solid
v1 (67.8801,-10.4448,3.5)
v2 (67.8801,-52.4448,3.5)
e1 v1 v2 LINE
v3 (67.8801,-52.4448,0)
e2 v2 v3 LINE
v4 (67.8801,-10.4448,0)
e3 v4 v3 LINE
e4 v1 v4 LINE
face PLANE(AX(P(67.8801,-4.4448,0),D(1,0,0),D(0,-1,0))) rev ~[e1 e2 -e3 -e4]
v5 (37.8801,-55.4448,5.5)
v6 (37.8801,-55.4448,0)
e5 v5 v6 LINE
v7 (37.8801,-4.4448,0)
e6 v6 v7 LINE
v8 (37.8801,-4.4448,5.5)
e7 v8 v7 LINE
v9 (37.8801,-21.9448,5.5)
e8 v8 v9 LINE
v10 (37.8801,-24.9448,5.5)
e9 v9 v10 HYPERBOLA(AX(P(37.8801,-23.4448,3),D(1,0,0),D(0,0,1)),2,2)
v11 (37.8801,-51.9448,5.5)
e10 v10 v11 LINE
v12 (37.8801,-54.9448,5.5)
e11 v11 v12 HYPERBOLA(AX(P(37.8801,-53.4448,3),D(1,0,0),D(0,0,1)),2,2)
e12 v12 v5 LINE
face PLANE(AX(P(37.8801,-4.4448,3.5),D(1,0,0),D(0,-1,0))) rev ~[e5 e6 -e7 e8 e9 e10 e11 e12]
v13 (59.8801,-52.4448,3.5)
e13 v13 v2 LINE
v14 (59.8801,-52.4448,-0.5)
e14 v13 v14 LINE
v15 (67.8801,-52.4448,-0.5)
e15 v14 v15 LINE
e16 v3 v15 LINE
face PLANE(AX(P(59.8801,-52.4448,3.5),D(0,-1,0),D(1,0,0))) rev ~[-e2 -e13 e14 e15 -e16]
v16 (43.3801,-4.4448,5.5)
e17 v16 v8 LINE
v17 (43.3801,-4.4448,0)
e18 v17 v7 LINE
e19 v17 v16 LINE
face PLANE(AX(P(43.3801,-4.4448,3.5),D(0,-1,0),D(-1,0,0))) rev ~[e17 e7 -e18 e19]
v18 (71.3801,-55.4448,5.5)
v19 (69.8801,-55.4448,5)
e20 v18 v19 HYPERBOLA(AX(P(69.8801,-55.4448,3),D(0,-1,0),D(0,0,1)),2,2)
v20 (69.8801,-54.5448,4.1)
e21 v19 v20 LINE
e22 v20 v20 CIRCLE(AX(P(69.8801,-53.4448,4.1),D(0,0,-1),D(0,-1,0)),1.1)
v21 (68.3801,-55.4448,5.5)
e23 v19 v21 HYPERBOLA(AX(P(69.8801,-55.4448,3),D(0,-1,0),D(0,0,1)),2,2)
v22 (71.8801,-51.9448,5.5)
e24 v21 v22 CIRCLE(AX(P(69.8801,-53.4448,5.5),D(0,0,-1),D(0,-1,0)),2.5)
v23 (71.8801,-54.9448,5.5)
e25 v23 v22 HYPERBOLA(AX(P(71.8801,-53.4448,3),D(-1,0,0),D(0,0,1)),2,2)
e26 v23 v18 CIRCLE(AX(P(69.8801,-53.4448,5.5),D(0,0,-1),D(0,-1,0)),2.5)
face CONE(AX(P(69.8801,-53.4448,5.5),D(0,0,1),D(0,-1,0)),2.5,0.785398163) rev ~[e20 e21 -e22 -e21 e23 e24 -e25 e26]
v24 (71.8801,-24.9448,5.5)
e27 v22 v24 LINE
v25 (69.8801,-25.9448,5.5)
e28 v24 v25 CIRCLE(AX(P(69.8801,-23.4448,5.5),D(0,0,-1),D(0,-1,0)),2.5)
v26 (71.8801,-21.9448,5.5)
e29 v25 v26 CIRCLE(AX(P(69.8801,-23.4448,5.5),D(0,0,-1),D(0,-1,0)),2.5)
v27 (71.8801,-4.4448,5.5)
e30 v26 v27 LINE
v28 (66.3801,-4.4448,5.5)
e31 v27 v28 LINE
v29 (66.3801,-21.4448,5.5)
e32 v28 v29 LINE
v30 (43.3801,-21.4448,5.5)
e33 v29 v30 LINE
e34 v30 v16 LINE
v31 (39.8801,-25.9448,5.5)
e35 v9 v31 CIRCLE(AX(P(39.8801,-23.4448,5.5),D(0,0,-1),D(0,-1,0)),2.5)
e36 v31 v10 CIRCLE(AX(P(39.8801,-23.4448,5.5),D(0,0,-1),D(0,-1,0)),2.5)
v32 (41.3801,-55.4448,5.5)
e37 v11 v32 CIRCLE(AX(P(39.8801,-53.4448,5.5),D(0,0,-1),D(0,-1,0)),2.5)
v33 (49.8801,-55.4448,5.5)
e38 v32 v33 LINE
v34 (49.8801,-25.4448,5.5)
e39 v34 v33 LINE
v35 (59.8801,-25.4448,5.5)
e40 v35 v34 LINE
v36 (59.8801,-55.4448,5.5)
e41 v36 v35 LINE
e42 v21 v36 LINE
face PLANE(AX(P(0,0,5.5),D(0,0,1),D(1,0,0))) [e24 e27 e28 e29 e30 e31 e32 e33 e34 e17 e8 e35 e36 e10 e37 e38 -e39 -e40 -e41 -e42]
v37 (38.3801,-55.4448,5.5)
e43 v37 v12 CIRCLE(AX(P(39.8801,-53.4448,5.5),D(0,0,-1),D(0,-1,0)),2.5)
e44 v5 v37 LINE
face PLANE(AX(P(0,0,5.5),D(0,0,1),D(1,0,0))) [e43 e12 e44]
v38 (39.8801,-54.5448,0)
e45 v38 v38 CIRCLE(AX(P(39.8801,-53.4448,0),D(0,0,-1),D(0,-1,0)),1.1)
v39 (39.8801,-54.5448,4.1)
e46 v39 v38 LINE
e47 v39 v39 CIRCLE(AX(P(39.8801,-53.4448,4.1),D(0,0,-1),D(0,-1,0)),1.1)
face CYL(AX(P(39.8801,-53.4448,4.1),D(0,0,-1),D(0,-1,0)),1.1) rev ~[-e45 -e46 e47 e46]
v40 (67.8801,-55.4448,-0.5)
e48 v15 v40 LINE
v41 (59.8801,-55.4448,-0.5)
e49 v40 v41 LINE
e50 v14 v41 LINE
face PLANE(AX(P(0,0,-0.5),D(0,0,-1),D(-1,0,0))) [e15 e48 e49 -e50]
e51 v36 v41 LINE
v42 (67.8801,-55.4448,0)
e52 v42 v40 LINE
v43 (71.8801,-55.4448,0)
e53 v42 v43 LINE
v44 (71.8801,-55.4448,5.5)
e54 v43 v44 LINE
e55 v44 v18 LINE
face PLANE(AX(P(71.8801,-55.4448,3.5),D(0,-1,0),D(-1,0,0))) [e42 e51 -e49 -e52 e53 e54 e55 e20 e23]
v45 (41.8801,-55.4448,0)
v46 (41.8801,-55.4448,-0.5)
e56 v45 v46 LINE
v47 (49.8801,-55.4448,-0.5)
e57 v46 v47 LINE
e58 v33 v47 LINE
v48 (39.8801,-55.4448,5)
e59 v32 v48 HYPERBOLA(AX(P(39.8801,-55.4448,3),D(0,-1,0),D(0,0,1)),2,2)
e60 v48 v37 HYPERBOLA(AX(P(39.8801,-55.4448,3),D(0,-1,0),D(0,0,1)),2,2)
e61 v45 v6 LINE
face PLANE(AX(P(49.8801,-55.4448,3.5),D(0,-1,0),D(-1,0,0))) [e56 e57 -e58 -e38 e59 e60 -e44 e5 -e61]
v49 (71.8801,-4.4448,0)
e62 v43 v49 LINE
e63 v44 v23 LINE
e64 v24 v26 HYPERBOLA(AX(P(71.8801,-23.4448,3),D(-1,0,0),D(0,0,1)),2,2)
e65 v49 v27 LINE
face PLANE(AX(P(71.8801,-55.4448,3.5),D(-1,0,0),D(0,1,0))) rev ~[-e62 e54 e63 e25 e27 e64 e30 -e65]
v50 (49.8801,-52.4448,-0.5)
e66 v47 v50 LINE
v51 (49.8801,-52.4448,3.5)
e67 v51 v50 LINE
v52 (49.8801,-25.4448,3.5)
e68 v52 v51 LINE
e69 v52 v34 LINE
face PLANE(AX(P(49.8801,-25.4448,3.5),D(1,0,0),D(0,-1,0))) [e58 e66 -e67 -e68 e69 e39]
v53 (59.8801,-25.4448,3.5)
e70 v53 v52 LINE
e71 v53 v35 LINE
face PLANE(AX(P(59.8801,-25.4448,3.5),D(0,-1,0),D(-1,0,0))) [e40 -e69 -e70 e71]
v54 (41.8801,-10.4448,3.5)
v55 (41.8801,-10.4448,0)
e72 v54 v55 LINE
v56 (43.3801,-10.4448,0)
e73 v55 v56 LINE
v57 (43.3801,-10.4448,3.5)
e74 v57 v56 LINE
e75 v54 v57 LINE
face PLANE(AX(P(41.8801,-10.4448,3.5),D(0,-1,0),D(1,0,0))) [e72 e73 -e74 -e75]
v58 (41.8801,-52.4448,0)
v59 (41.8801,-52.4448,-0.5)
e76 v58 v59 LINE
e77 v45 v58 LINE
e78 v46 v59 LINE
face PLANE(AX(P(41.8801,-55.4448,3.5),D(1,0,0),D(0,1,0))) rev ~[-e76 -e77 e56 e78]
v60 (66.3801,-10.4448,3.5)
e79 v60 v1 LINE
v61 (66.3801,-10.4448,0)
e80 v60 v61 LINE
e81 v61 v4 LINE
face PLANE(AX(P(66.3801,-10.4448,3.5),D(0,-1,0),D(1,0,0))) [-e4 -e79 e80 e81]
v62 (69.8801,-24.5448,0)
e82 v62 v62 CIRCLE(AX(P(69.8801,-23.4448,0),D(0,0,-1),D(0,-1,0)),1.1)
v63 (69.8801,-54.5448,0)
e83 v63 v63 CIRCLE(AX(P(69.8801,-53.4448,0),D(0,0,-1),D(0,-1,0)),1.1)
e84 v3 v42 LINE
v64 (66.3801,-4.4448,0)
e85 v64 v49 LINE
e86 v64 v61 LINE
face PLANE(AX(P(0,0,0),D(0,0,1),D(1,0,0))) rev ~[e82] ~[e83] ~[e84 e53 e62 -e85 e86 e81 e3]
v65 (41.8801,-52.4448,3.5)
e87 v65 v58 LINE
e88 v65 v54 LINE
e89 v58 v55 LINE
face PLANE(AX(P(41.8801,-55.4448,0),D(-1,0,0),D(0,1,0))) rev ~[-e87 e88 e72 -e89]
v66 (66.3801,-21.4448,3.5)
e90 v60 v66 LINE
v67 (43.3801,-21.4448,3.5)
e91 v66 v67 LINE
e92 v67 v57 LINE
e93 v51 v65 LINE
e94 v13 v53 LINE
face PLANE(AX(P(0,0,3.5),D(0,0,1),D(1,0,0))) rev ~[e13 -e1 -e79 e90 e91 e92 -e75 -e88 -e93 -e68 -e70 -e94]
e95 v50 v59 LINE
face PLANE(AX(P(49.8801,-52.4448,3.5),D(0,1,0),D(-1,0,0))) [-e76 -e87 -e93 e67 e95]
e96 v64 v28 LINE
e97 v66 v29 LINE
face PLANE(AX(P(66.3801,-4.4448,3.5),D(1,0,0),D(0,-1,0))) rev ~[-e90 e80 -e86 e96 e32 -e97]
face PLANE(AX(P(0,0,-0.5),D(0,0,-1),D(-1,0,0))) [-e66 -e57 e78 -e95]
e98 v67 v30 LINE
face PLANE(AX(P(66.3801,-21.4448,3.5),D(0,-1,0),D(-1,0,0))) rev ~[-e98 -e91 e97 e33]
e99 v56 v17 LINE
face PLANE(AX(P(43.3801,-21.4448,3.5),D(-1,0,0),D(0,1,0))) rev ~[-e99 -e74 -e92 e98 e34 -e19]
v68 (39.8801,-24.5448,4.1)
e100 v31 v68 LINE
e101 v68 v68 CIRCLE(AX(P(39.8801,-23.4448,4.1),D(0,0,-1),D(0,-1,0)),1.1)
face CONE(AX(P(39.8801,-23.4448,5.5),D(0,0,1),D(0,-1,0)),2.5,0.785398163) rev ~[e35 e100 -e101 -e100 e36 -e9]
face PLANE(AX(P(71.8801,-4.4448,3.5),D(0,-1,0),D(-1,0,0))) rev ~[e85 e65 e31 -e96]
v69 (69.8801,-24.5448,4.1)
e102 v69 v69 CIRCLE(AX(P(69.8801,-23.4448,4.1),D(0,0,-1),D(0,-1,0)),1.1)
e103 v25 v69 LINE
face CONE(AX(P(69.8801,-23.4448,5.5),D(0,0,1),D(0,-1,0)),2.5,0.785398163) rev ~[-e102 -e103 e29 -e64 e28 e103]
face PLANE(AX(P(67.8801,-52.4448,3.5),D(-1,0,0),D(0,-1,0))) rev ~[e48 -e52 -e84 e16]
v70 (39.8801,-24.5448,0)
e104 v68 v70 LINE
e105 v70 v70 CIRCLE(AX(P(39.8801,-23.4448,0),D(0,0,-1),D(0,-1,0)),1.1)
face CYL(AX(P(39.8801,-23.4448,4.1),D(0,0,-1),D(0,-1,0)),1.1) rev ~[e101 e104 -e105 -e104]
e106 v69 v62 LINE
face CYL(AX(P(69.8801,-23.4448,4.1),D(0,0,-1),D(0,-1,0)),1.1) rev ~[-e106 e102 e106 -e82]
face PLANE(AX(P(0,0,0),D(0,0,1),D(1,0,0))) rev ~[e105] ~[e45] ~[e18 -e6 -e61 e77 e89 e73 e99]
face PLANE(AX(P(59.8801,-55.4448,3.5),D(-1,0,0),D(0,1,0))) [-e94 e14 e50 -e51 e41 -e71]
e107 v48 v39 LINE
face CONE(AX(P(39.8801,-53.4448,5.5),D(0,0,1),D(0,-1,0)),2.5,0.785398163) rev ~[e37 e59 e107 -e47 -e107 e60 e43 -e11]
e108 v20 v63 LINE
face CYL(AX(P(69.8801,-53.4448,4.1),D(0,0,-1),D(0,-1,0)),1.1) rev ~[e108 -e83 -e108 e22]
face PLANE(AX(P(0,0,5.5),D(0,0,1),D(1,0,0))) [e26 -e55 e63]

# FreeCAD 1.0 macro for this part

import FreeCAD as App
import Part
import Sketcher
from FreeCAD import Vector


def add_polygon(sketch, points):
    """Adds a closed chain of lines whose ends are joined by coincident constraints."""
    first, n = sketch.GeometryCount, len(points)
    for a, b in zip(points, points[1:] + points[:1]):
        sketch.addGeometry(Part.LineSegment(App.Vector(*a, 0), App.Vector(*b, 0)), False)
    for i in range(n):
        sketch.addConstraint(Sketcher.Constraint("Coincident", first + i, 2, first + (i + 1) % n, 1))

doc = App.newDocument("Part")
body = doc.addObject("PartDesign::Body", "Body")
body.AllowCompound = True

sketch1 = doc.addObject("Sketcher::SketchObject", "Sketch")
body.addObject(sketch1)
sketch1.AttachmentSupport = (doc.XY_Plane, [""])
sketch1.MapMode = "FlatFace"
add_polygon(sketch1, [(71.9, -55.4), (71.9, -4.4), (67.9, -4.4), (67.9, -55.4)])
add_polygon(sketch1, [(41.9, -55.4), (41.9, -4.4), (37.9, -4.4), (37.9, -55.4)])
sketch1.addConstraint(Sketcher.Constraint("Vertical", 0))
sketch1.addConstraint(Sketcher.Constraint("Horizontal", 1))
sketch1.addConstraint(Sketcher.Constraint("Vertical", 2))
sketch1.addConstraint(Sketcher.Constraint("Horizontal", 3))
sketch1.addConstraint(Sketcher.Constraint("Vertical", 4))
sketch1.addConstraint(Sketcher.Constraint("Horizontal", 5))
sketch1.addConstraint(Sketcher.Constraint("Vertical", 6))
sketch1.addConstraint(Sketcher.Constraint("Horizontal", 7))
sketch1.addConstraint(Sketcher.Constraint("Horizontal", 1, 2, 4, 2))
sketch1.addConstraint(Sketcher.Constraint("Horizontal", 3, 2, 6, 2))
sketch1.addConstraint(Sketcher.Constraint("Equal", 3, 5))
sketch1.addConstraint(Sketcher.Constraint("DistanceX", 1, 2, 1, 1, 4.0))
sketch1.addConstraint(Sketcher.Constraint("DistanceY", 0, 1, 0, 2, 51.0))
sketch1.addConstraint(Sketcher.Constraint("DistanceX", 4, 2, 1, 2, 26.0))
sketch1.addConstraint(Sketcher.Constraint("DistanceX", -1, 1, 0, 2, 71.88))
sketch1.addConstraint(Sketcher.Constraint("DistanceY", 0, 2, -1, 1, 4.4448))
pad1 = doc.addObject("PartDesign::Pad", "Pad")
body.addObject(pad1)
pad1.Profile = sketch1
pad1.Length = 3.5

sketch2 = doc.addObject("Sketcher::SketchObject", "Sketch001")
body.addObject(sketch2)
sketch2.AttachmentSupport = (doc.XY_Plane, [""])
sketch2.MapMode = "FlatFace"
sketch2.AttachmentOffset = App.Placement(Vector(0, 0, 3.5), App.Rotation())
add_polygon(sketch2, [(60, -55), (72, -55), (72, -4), (66, -4), (66, -21), (43, -21), (43, -4), (38, -4), (38, -55), (50, -55), (50, -25), (60, -25)])
sketch2.addConstraint(Sketcher.Constraint("Horizontal", 0))
sketch2.addConstraint(Sketcher.Constraint("Vertical", 1))
sketch2.addConstraint(Sketcher.Constraint("Horizontal", 2))
sketch2.addConstraint(Sketcher.Constraint("Vertical", 3))
sketch2.addConstraint(Sketcher.Constraint("Horizontal", 4))
sketch2.addConstraint(Sketcher.Constraint("Vertical", 5))
sketch2.addConstraint(Sketcher.Constraint("Horizontal", 6))
sketch2.addConstraint(Sketcher.Constraint("Vertical", 7))
sketch2.addConstraint(Sketcher.Constraint("Horizontal", 8))
sketch2.addConstraint(Sketcher.Constraint("Vertical", 9))
sketch2.addConstraint(Sketcher.Constraint("Horizontal", 10))
sketch2.addConstraint(Sketcher.Constraint("Vertical", 11))
sketch2.addConstraint(Sketcher.Constraint("Horizontal", 2, 2, 5, 2))
sketch2.addConstraint(Sketcher.Constraint("Horizontal", 0, 2, 7, 2))
sketch2.addConstraint(Sketcher.Constraint("Equal", 2, 6))
sketch2.addConstraint(Sketcher.Constraint("Equal", 0, 8))
sketch2.addConstraint(Sketcher.Constraint("DistanceX", 4, 2, 4, 1, 23.0))
sketch2.addConstraint(Sketcher.Constraint("DistanceX", 10, 1, 10, 2, 10.0))
sketch2.addConstraint(Sketcher.Constraint("DistanceY", 3, 2, 3, 1, 17.0))
sketch2.addConstraint(Sketcher.Constraint("DistanceY", 9, 2, 4, 2, 4.0))
sketch2.addConstraint(Sketcher.Constraint("DistanceX", 0, 1, 0, 2, 12.0))
sketch2.addConstraint(Sketcher.Constraint("DistanceY", 1, 1, 1, 2, 51.0))
sketch2.addConstraint(Sketcher.Constraint("DistanceX", -1, 1, 0, 2, 71.88))
sketch2.addConstraint(Sketcher.Constraint("DistanceY", 0, 2, -1, 1, 55.4448))
pad2 = doc.addObject("PartDesign::Pad", "Pad001")
body.addObject(pad2)
pad2.Profile = sketch2
pad2.Length = 2

sketch3 = doc.addObject("Sketcher::SketchObject", "Sketch002")
body.addObject(sketch3)
sketch3.AttachmentSupport = (doc.XY_Plane, [""])
sketch3.MapMode = "FlatFace"
sketch3.AttachmentOffset = App.Placement(Vector(0, 0, 5.5), App.Rotation())
sketch3.addGeometry(Part.Circle(Vector(39.9, -23.4, 0), Vector(0, 0, 1), 1.1), False)
sketch3.addGeometry(Part.Circle(Vector(69.9, -23.4, 0), Vector(0, 0, 1), 1.1), False)
sketch3.addGeometry(Part.Circle(Vector(39.9, -53.4, 0), Vector(0, 0, 1), 1.1), False)
sketch3.addGeometry(Part.Circle(Vector(69.9, -53.4, 0), Vector(0, 0, 1), 1.1), False)
sketch3.addConstraint(Sketcher.Constraint("Equal", 0, 1))
sketch3.addConstraint(Sketcher.Constraint("Equal", 1, 2))
sketch3.addConstraint(Sketcher.Constraint("Equal", 2, 3))
sketch3.addConstraint(Sketcher.Constraint("Horizontal", 0, 3, 1, 3))
sketch3.addConstraint(Sketcher.Constraint("Horizontal", 2, 3, 3, 3))
sketch3.addConstraint(Sketcher.Constraint("Vertical", 0, 3, 2, 3))
sketch3.addConstraint(Sketcher.Constraint("Vertical", 1, 3, 3, 3))
sketch3.addConstraint(Sketcher.Constraint("Diameter", 0, 2.2))
sketch3.addConstraint(Sketcher.Constraint("DistanceX", 0, 3, 1, 3, 30.0))
sketch3.addConstraint(Sketcher.Constraint("DistanceY", 2, 3, 0, 3, 30.0))
sketch3.addConstraint(Sketcher.Constraint("DistanceX", -1, 1, 0, 3, 39.88))
sketch3.addConstraint(Sketcher.Constraint("DistanceY", 0, 3, -1, 1, 23.4448))
doc.recompute()
hole = doc.addObject("PartDesign::Hole", "Hole")
body.addObject(hole)
hole.Profile = sketch3
hole.ThreadType = "None"
hole.Diameter = 2.2
hole.DepthType = "ThroughAll"
hole.HoleCutType = "Countersink"
hole.HoleCutDiameter = 5
hole.HoleCutCountersinkAngle = 90

sketch4 = doc.addObject("Sketcher::SketchObject", "Sketch003")
body.addObject(sketch4)
sketch4.AttachmentSupport = (doc.XY_Plane, [""])
sketch4.MapMode = "FlatFace"
sketch4.AttachmentOffset = App.Placement(Vector(0, 0, 3.5), App.Rotation())
add_polygon(sketch4, [(66.4, -4.4), (67.9, -4.4), (67.9, -10.4), (66.4, -10.4)])
add_polygon(sketch4, [(43.4, -4.4), (43.4, -10.4), (41.9, -10.4), (41.9, -4.4)])
sketch4.addConstraint(Sketcher.Constraint("Horizontal", 0))
sketch4.addConstraint(Sketcher.Constraint("Vertical", 1))
sketch4.addConstraint(Sketcher.Constraint("Horizontal", 2))
sketch4.addConstraint(Sketcher.Constraint("Vertical", 3))
sketch4.addConstraint(Sketcher.Constraint("Vertical", 4))
sketch4.addConstraint(Sketcher.Constraint("Horizontal", 5))
sketch4.addConstraint(Sketcher.Constraint("Vertical", 6))
sketch4.addConstraint(Sketcher.Constraint("Horizontal", 7))
sketch4.addConstraint(Sketcher.Constraint("Horizontal", 2, 2, 4, 2))
sketch4.addConstraint(Sketcher.Constraint("Horizontal", 3, 2, 6, 2))
sketch4.addConstraint(Sketcher.Constraint("Equal", 2, 5))
sketch4.addConstraint(Sketcher.Constraint("DistanceY", 1, 2, 1, 1, 6.0))
sketch4.addConstraint(Sketcher.Constraint("DistanceX", 0, 1, 0, 2, 1.5))
sketch4.addConstraint(Sketcher.Constraint("DistanceX", 4, 2, 2, 2, 23.0))
sketch4.addConstraint(Sketcher.Constraint("DistanceX", -1, 1, 0, 2, 67.88))
sketch4.addConstraint(Sketcher.Constraint("DistanceY", 0, 2, -1, 1, 4.4448))
pad3 = doc.addObject("PartDesign::Pad", "Pad002")
body.addObject(pad3)
pad3.Profile = sketch4
pad3.Length = 3.5
pad3.Reversed = True

sketch5 = doc.addObject("Sketcher::SketchObject", "Sketch004")
body.addObject(sketch5)
sketch5.AttachmentSupport = (doc.XY_Plane, [""])
sketch5.MapMode = "FlatFace"
sketch5.AttachmentOffset = App.Placement(Vector(0, 0, 3.5), App.Rotation())
add_polygon(sketch5, [(59.9, -52.4), (67.9, -52.4), (67.9, -55.4), (59.9, -55.4)])
add_polygon(sketch5, [(41.9, -55.4), (41.9, -52.4), (49.9, -52.4), (49.9, -55.4)])
sketch5.addConstraint(Sketcher.Constraint("Horizontal", 0))
sketch5.addConstraint(Sketcher.Constraint("Vertical", 1))
sketch5.addConstraint(Sketcher.Constraint("Horizontal", 2))
sketch5.addConstraint(Sketcher.Constraint("Vertical", 3))
sketch5.addConstraint(Sketcher.Constraint("Vertical", 4))
sketch5.addConstraint(Sketcher.Constraint("Horizontal", 5))
sketch5.addConstraint(Sketcher.Constraint("Vertical", 6))
sketch5.addConstraint(Sketcher.Constraint("Horizontal", 7))
sketch5.addConstraint(Sketcher.Constraint("Horizontal", 3, 2, 4, 2))
sketch5.addConstraint(Sketcher.Constraint("Horizontal", 2, 2, 6, 2))
sketch5.addConstraint(Sketcher.Constraint("Equal", 2, 5))
sketch5.addConstraint(Sketcher.Constraint("DistanceX", 0, 1, 0, 2, 8.0))
sketch5.addConstraint(Sketcher.Constraint("DistanceY", 1, 2, 1, 1, 3.0))
sketch5.addConstraint(Sketcher.Constraint("DistanceX", 4, 2, 3, 2, 18.0))
sketch5.addConstraint(Sketcher.Constraint("DistanceX", -1, 1, 0, 2, 67.88))
sketch5.addConstraint(Sketcher.Constraint("DistanceY", 0, 2, -1, 1, 52.4448))
pad4 = doc.addObject("PartDesign::Pad", "Pad003")
body.addObject(pad4)
pad4.Profile = sketch5
pad4.Length = 4
pad4.Reversed = True

doc.recompute()
